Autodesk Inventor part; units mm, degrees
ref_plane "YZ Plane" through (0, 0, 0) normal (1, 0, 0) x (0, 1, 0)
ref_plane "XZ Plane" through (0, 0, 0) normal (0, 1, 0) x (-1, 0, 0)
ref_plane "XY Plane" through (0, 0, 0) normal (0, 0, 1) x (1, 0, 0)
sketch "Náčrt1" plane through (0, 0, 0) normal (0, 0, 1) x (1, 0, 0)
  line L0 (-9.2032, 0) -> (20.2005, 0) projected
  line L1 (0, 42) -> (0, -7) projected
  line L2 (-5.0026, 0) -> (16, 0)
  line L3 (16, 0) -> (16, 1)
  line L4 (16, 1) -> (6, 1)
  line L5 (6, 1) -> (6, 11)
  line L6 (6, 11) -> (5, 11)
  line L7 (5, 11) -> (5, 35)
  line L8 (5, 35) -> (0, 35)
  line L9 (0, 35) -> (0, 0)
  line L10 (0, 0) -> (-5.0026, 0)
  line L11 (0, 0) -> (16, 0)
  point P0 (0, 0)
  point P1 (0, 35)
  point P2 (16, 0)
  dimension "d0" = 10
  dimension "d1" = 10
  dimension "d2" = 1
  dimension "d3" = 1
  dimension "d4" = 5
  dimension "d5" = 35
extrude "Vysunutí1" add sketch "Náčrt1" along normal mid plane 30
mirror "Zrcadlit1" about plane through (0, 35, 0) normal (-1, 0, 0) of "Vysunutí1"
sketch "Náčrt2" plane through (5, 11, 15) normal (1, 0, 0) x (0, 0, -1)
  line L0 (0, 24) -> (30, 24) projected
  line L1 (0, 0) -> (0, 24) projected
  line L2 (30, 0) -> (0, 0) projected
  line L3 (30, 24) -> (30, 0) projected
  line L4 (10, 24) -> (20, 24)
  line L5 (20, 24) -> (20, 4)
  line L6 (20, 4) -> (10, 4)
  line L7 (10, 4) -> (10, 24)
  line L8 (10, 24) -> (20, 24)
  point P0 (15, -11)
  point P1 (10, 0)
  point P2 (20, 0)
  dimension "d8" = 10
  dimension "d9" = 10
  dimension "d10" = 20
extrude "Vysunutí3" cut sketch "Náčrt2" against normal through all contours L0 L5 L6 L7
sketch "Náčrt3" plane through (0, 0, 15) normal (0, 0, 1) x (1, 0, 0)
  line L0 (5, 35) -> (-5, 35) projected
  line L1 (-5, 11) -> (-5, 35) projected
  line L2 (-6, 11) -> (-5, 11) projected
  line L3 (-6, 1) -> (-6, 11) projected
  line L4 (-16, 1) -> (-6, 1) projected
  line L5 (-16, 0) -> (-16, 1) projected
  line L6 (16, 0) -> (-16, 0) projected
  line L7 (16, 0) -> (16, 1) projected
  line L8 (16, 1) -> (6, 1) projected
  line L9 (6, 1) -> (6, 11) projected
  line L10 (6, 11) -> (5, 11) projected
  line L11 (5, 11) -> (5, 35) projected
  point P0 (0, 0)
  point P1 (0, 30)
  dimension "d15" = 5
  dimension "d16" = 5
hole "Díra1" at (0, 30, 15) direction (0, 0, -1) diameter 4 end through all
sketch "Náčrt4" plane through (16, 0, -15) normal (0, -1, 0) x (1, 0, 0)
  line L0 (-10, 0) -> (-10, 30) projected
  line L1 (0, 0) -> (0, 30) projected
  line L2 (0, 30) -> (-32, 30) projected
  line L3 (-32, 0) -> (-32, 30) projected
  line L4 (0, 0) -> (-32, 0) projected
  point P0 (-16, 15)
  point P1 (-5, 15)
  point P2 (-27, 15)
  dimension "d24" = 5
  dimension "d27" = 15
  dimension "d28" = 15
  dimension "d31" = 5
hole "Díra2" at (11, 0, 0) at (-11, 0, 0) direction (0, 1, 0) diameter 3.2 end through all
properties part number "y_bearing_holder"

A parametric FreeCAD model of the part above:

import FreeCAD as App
import Part
import Sketcher

doc = App.newDocument("Part")
body = doc.addObject("PartDesign::Body", "Body")

# Sketch on XY plane
sketch1 = doc.addObject("Sketcher::SketchObject", "Sketch")
body.addObject(sketch1)
sketch1.AttachmentSupport = (doc.XY_Plane, [""])
sketch1.MapMode = "FlatFace"
sketch1.addGeometry([
    Part.LineSegment(App.Vector(0, 35, 0), App.Vector(0, 0, 0)),  # 0
    Part.LineSegment(App.Vector(0, 0, 0), App.Vector(16, 0, 0)),  # 1
    Part.LineSegment(App.Vector(16, 0, 0), App.Vector(16, 1, 0)),  # 2
    Part.LineSegment(App.Vector(16, 1, 0), App.Vector(6, 1, 0)),  # 3
    Part.LineSegment(App.Vector(6, 1, 0), App.Vector(6, 11, 0)),  # 4
    Part.LineSegment(App.Vector(6, 11, 0), App.Vector(5, 11, 0)),  # 5
    Part.LineSegment(App.Vector(5, 11, 0), App.Vector(5, 35, 0)),  # 6
    Part.LineSegment(App.Vector(5, 35, 0), App.Vector(0, 35, 0)),  # 7
], False)
sketch1.addConstraint([
    Sketcher.Constraint("Coincident", 0, 2, 1, 1),
    Sketcher.Constraint("Coincident", 1, 2, 2, 1),
    Sketcher.Constraint("Coincident", 2, 2, 3, 1),
    Sketcher.Constraint("Coincident", 3, 2, 4, 1),
    Sketcher.Constraint("Coincident", 4, 2, 5, 1),
    Sketcher.Constraint("Coincident", 5, 2, 6, 1),
    Sketcher.Constraint("Coincident", 6, 2, 7, 1),
    Sketcher.Constraint("Coincident", 7, 2, 0, 1),
    Sketcher.Constraint("Vertical", 0),
    Sketcher.Constraint("Horizontal", 1),
    Sketcher.Constraint("Vertical", 2),
    Sketcher.Constraint("Horizontal", 3),
    Sketcher.Constraint("Vertical", 4),
    Sketcher.Constraint("Horizontal", 5),
    Sketcher.Constraint("Vertical", 6),
    Sketcher.Constraint("Horizontal", 7),
    Sketcher.Constraint("Coincident", 0, 2, -1, 1),
    Sketcher.Constraint("Equal", 5, 2),
    Sketcher.Constraint("Equal", 3, 4),
    Sketcher.Constraint("DistanceX", 3, 2, 3, 1, 10.0),
    Sketcher.Constraint("DistanceX", 5, 2, 5, 1, 1.0),
    Sketcher.Constraint("DistanceX", 7, 2, 7, 1, 5.0),
    Sketcher.Constraint("DistanceY", 0, 2, 0, 1, 35.0),
])
pad1 = doc.addObject("PartDesign::Pad", "Pad")
body.addObject(pad1)
pad1.Profile = sketch1
pad1.Length = 30
pad1.Midplane = True
doc.recompute()

mirrored = doc.addObject("PartDesign::Mirrored", "Mirrored")
body.addObject(mirrored)
mirrored.Originals = [pad1]
mirrored.MirrorPlane = (doc.YZ_Plane, [""])
body.Tip = mirrored

# Sketch on YZ plane
sketch2 = doc.addObject("Sketcher::SketchObject", "Sketch001")
body.addObject(sketch2)
sketch2.AttachmentSupport = (doc.YZ_Plane, [""])
sketch2.MapMode = "FlatFace"
sketch2.AttachmentOffset = App.Placement(App.Vector(0, 0, 5), App.Rotation())
sketch2.addGeometry([
    Part.LineSegment(App.Vector(35, -5, 0), App.Vector(35, 5, 0)),
    Part.LineSegment(App.Vector(35, 5, 0), App.Vector(15, 5, 0)),
    Part.LineSegment(App.Vector(15, 5, 0), App.Vector(15, -5, 0)),
    Part.LineSegment(App.Vector(15, -5, 0), App.Vector(35, -5, 0)),
], False)
sketch2.addConstraint([
    Sketcher.Constraint("Coincident", 0, 2, 1, 1),
    Sketcher.Constraint("Coincident", 1, 2, 2, 1),
    Sketcher.Constraint("Coincident", 2, 2, 3, 1),
    Sketcher.Constraint("Coincident", 3, 2, 0, 1),
    Sketcher.Constraint("Vertical", 0),
    Sketcher.Constraint("Horizontal", 1),
    Sketcher.Constraint("Vertical", 2),
    Sketcher.Constraint("Horizontal", 3),
    Sketcher.Constraint("DistanceX", 1, 2, 1, 1, 20.0),
    Sketcher.Constraint("DistanceY", 0, 1, 0, 2, 10.0),
    Sketcher.Constraint("DistanceX", -1, 1, 0, 2, 35.0),
    Sketcher.Constraint("DistanceY", -1, 1, 0, 2, 5.0),
])
pocket1 = doc.addObject("PartDesign::Pocket", "Pocket")
body.addObject(pocket1)
pocket1.Profile = sketch2
pocket1.Type = "ThroughAll"

# Sketch on XY plane
sketch3 = doc.addObject("Sketcher::SketchObject", "Sketch002")
body.addObject(sketch3)
sketch3.AttachmentSupport = (doc.XY_Plane, [""])
sketch3.MapMode = "FlatFace"
sketch3.AttachmentOffset = App.Placement(App.Vector(0, 0, 15), App.Rotation())
sketch3.addGeometry(Part.Circle(App.Vector(0, 30, 0), App.Vector(0, 0, 1), 2), False)
sketch3.addConstraint([
    Sketcher.Constraint("PointOnObject", 0, 3, -2),
    Sketcher.Constraint("Diameter", 0, 4.0),
    Sketcher.Constraint("DistanceY", -1, 1, 0, 3, 30.0),
])
doc.recompute()
hole = doc.addObject("PartDesign::Hole", "Hole")
body.addObject(hole)
hole.Profile = sketch3
hole.ThreadType = "None"
hole.Diameter = 4
hole.DepthType = "ThroughAll"

# Sketch on XZ plane
sketch4 = doc.addObject("Sketcher::SketchObject", "Sketch003")
body.addObject(sketch4)
sketch4.AttachmentSupport = (doc.XZ_Plane, [""])
sketch4.MapMode = "FlatFace"
sketch4.addGeometry([
    Part.Circle(App.Vector(11, 0, 0), App.Vector(0, 0, 1), 1.6),
    Part.Circle(App.Vector(-11, 0, 0), App.Vector(0, 0, 1), 1.6),
], False)
sketch4.addConstraint([
    Sketcher.Constraint("Equal", 0, 1),
    Sketcher.Constraint("Symmetric", 0, 3, 1, 3, -1, 1),
    Sketcher.Constraint("PointOnObject", 0, 3, -1),
    Sketcher.Constraint("Diameter", 0, 3.2),
    Sketcher.Constraint("DistanceX", -1, 1, 0, 3, 11.0),
])
doc.recompute()
hole2 = doc.addObject("PartDesign::Hole", "Hole001")
body.addObject(hole2)
hole2.Profile = sketch4
hole2.ThreadType = "None"
hole2.Diameter = 3.2
hole2.DepthType = "ThroughAll"

doc.recompute()
